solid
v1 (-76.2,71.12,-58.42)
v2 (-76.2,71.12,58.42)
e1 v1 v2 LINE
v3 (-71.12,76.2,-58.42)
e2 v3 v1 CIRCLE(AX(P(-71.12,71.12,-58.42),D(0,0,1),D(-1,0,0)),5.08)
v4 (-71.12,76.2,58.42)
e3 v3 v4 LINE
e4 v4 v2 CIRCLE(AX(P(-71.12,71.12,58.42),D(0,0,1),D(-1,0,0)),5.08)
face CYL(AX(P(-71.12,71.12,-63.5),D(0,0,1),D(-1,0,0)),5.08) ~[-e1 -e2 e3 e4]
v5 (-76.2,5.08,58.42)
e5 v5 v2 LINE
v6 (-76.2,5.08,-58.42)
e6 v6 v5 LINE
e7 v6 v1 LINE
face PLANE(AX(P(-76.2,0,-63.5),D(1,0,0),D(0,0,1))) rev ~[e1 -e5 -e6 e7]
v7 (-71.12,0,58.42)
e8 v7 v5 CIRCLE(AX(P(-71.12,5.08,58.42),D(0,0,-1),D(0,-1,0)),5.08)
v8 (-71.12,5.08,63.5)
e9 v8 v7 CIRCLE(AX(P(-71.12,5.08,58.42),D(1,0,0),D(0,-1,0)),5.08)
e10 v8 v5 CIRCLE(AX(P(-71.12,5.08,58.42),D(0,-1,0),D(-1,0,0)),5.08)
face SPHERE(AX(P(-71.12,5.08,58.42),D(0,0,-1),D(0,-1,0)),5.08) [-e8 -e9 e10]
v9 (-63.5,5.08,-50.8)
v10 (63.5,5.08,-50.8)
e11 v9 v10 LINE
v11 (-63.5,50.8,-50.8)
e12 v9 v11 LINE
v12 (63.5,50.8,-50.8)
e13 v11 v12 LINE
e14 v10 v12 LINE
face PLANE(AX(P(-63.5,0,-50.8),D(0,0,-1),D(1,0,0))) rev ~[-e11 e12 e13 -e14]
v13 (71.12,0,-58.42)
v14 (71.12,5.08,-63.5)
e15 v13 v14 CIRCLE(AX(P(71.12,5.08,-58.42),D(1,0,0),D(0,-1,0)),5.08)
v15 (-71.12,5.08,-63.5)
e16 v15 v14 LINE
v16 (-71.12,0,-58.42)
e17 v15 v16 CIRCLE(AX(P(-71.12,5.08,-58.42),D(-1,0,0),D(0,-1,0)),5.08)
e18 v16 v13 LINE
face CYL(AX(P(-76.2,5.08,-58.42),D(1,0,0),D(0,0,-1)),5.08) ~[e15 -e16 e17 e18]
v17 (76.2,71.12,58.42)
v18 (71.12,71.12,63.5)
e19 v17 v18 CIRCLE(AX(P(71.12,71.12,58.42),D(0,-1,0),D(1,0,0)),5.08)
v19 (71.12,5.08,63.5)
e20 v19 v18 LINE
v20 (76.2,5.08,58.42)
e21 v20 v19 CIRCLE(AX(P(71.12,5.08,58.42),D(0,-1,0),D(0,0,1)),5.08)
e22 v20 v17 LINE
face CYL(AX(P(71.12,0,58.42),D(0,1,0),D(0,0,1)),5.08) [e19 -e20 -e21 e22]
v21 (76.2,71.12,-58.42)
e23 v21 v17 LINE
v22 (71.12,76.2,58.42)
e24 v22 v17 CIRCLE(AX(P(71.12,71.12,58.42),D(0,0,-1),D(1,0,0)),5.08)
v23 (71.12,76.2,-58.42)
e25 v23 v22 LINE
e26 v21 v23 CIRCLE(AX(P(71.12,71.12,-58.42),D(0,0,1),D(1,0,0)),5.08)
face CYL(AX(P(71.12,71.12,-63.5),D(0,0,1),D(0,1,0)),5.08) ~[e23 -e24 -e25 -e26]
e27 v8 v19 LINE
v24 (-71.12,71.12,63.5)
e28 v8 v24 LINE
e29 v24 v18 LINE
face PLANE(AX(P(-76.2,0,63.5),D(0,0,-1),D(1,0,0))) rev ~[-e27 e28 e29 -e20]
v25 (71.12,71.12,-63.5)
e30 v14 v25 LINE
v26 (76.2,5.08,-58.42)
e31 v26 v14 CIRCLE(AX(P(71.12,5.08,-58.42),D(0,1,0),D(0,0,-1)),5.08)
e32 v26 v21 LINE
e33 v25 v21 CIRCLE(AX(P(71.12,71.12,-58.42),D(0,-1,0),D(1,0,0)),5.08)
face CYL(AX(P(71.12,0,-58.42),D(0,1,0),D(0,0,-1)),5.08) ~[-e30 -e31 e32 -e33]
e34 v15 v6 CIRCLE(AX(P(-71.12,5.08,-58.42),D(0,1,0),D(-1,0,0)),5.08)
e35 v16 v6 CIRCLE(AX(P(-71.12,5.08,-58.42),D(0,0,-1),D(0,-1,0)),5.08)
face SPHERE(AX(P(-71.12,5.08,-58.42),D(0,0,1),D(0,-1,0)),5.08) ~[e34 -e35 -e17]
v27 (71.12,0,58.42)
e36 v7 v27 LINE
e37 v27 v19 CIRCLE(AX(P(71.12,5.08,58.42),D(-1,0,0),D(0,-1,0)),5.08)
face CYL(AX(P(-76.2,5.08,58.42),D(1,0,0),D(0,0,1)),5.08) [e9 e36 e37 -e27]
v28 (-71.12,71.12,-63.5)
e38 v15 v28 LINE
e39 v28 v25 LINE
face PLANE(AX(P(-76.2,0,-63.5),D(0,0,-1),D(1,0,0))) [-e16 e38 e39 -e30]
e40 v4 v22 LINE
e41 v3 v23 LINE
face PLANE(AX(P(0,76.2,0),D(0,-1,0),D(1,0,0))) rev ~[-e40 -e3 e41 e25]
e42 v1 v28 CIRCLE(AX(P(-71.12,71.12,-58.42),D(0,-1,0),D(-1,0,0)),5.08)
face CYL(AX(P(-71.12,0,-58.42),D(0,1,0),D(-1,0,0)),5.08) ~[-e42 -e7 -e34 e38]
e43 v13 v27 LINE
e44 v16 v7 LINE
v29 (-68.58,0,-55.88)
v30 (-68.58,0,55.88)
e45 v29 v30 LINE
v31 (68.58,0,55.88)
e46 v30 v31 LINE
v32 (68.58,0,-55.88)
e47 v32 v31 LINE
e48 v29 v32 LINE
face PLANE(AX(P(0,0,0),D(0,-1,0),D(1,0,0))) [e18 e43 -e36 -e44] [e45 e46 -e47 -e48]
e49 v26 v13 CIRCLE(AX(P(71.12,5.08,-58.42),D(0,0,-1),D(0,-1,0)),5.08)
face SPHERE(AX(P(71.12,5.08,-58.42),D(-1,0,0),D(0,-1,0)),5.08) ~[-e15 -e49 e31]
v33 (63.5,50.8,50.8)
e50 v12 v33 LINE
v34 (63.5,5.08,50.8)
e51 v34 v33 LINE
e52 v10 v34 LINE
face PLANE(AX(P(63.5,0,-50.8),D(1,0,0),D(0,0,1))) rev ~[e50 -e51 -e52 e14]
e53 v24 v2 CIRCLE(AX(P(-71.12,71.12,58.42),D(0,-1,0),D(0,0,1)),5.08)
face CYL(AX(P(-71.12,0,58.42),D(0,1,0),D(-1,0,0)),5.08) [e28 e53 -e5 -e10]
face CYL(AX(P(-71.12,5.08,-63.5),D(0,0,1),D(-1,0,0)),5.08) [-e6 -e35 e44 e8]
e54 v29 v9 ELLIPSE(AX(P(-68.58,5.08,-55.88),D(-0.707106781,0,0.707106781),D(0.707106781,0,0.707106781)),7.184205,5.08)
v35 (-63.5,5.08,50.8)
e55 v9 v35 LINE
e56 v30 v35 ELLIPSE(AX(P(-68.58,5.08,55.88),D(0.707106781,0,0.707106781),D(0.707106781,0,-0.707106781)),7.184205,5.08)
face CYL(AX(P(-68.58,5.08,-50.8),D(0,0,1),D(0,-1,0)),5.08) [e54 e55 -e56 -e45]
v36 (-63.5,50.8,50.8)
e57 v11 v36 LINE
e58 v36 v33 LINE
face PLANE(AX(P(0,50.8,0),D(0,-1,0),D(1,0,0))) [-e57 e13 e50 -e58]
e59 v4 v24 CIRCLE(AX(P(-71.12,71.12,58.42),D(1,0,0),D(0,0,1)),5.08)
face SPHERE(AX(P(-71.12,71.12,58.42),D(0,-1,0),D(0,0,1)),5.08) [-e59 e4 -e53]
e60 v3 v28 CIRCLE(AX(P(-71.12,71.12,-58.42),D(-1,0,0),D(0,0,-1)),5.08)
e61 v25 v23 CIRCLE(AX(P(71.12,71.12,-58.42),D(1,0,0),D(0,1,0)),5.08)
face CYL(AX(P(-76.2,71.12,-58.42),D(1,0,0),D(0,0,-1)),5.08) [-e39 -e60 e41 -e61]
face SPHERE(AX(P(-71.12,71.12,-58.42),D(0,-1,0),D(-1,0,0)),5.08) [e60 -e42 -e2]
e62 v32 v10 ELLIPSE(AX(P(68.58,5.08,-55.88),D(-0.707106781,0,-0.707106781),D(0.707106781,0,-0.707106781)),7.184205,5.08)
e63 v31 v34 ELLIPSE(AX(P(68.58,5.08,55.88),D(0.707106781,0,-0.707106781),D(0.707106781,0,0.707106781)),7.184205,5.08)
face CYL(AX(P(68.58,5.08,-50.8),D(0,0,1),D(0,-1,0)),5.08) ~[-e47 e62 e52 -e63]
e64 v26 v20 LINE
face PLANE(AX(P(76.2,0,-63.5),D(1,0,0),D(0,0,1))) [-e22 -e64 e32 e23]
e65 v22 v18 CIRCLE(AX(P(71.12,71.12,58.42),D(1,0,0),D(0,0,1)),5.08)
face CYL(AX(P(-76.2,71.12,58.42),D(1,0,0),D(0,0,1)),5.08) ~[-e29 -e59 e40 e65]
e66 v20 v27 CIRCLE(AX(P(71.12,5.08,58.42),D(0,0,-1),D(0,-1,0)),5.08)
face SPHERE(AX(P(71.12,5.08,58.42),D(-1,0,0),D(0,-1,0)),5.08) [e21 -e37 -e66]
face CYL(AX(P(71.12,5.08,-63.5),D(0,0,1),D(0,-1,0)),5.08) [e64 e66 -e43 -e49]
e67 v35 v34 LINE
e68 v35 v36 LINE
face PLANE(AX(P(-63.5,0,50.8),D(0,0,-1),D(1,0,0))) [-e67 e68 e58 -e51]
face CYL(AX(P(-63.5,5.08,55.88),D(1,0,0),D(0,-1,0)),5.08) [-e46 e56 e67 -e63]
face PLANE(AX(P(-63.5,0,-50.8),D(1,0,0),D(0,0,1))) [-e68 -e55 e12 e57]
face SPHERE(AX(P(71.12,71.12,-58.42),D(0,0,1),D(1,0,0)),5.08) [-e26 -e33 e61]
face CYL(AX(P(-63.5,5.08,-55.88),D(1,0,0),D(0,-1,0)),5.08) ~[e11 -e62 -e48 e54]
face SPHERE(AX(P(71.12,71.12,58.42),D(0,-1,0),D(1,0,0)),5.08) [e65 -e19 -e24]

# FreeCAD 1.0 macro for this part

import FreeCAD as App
import Part
import Sketcher

V = App.Vector
Q = App.Units.Quantity


def edges_at(feature, points):
    """Names of the edges that pass closest to the given points."""
    edges = feature.Shape.Edges
    near = lambda p: min(range(len(edges)), key=lambda i: edges[i].distToShape(Part.Vertex(*p))[0])
    return sorted({f"Edge{near(p) + 1}" for p in points})

doc = App.newDocument("Part")
params = doc.addObject("Spreadsheet::Sheet", "Params")
for row, (alias, value) in enumerate([
    ("sketch1_width", "6 in"),
    ("sketch1_height", "5 in"),
    ("pad1_length", "3 in"),
    ("sketch2_width", "5 in"),
    ("sketch2_height", "4 in"),
    ("pocket1_length", "2 in"),
    ("fillet_radius", "0.2 in"),
], start=1):
    params.set(f"A{row}", alias)
    params.set(f"B{row}", "=" + value)
    params.setAlias(f"B{row}", alias)

body = doc.addObject("PartDesign::Body", "Body")

sketch1 = doc.addObject("Sketcher::SketchObject", "Sketch")
body.addObject(sketch1)
sketch1.AttachmentSupport = (doc.XZ_Plane, [""])
sketch1.MapMode = "FlatFace"
sketch1.addGeometry([
    Part.LineSegment(V(-76, 64, 0), V(-76, -64, 0)),
    Part.LineSegment(V(-76, -64, 0), V(76, -64, 0)),
    Part.LineSegment(V(76, -64, 0), V(76, 64, 0)),
    Part.LineSegment(V(76, 64, 0), V(-76, 64, 0)),
], False)
sketch1.addConstraint([
    Sketcher.Constraint("Coincident", 0, 2, 1, 1),
    Sketcher.Constraint("Coincident", 1, 2, 2, 1),
    Sketcher.Constraint("Coincident", 2, 2, 3, 1),
    Sketcher.Constraint("Coincident", 3, 2, 0, 1),
    Sketcher.Constraint("Vertical", 0),
    Sketcher.Constraint("Horizontal", 1),
    Sketcher.Constraint("Vertical", 2),
    Sketcher.Constraint("Horizontal", 3),
    Sketcher.Constraint("Symmetric", 0, 2, 2, 2, -1, 1),
    Sketcher.Constraint("DistanceX", 1, 1, 1, 2, Q("6 in")),
    Sketcher.Constraint("DistanceY", 0, 2, 0, 1, Q("5 in")),
])
sketch1.setExpression("Constraints[9]", "Params.sketch1_width")
sketch1.setExpression("Constraints[10]", "Params.sketch1_height")
pad1 = doc.addObject("PartDesign::Pad", "Pad")
body.addObject(pad1)
pad1.Profile = sketch1
pad1.setExpression("Length", "Params.pad1_length")
pad1.Reversed = True

sketch2 = doc.addObject("Sketcher::SketchObject", "Sketch001")
body.addObject(sketch2)
sketch2.AttachmentSupport = (doc.XZ_Plane, [""])
sketch2.MapMode = "FlatFace"
sketch2.addGeometry([
    Part.LineSegment(V(-64, 51, 0), V(-64, -51, 0)),
    Part.LineSegment(V(-64, -51, 0), V(64, -51, 0)),
    Part.LineSegment(V(64, -51, 0), V(64, 51, 0)),
    Part.LineSegment(V(64, 51, 0), V(-64, 51, 0)),
], False)
sketch2.addConstraint([
    Sketcher.Constraint("Coincident", 0, 2, 1, 1),
    Sketcher.Constraint("Coincident", 1, 2, 2, 1),
    Sketcher.Constraint("Coincident", 2, 2, 3, 1),
    Sketcher.Constraint("Coincident", 3, 2, 0, 1),
    Sketcher.Constraint("Vertical", 0),
    Sketcher.Constraint("Horizontal", 1),
    Sketcher.Constraint("Vertical", 2),
    Sketcher.Constraint("Horizontal", 3),
    Sketcher.Constraint("Symmetric", 0, 2, 2, 2, -1, 1),
    Sketcher.Constraint("DistanceX", 1, 1, 1, 2, Q("5 in")),
    Sketcher.Constraint("DistanceY", 0, 2, 0, 1, Q("4 in")),
])
sketch2.setExpression("Constraints[9]", "Params.sketch2_width")
sketch2.setExpression("Constraints[10]", "Params.sketch2_height")
pocket1 = doc.addObject("PartDesign::Pocket", "Pocket")
body.addObject(pocket1)
pocket1.Profile = sketch2
pocket1.setExpression("Length", "Params.pocket1_length")
doc.recompute()

fillet = doc.addObject("PartDesign::Fillet", "Fillet")
body.addObject(fillet)
fillet.Base = (pocket1, edges_at(pocket1, [
    (-76.2, 0, 0),
    (0, 0, 63.5),
    (0, 0, 50.8),
    (-63.5, 0, 0),
    (0, 0, -50.8),
    (0, 0, -63.5),
    (76.2, 0, 0),
    (63.5, 0, 0),
    (76.2, 38.1, 63.5),
    (76.2, 76.2, 0),
    (76.2, 38.1, -63.5),
    (-76.2, 38.1, 63.5),
    (0, 76.2, 63.5),
    (-76.2, 38.1, -63.5),
    (-76.2, 76.2, 0),
    (0, 76.2, -63.5),
]))
fillet.setExpression("Radius", "Params.fillet_radius")

doc.recompute()
